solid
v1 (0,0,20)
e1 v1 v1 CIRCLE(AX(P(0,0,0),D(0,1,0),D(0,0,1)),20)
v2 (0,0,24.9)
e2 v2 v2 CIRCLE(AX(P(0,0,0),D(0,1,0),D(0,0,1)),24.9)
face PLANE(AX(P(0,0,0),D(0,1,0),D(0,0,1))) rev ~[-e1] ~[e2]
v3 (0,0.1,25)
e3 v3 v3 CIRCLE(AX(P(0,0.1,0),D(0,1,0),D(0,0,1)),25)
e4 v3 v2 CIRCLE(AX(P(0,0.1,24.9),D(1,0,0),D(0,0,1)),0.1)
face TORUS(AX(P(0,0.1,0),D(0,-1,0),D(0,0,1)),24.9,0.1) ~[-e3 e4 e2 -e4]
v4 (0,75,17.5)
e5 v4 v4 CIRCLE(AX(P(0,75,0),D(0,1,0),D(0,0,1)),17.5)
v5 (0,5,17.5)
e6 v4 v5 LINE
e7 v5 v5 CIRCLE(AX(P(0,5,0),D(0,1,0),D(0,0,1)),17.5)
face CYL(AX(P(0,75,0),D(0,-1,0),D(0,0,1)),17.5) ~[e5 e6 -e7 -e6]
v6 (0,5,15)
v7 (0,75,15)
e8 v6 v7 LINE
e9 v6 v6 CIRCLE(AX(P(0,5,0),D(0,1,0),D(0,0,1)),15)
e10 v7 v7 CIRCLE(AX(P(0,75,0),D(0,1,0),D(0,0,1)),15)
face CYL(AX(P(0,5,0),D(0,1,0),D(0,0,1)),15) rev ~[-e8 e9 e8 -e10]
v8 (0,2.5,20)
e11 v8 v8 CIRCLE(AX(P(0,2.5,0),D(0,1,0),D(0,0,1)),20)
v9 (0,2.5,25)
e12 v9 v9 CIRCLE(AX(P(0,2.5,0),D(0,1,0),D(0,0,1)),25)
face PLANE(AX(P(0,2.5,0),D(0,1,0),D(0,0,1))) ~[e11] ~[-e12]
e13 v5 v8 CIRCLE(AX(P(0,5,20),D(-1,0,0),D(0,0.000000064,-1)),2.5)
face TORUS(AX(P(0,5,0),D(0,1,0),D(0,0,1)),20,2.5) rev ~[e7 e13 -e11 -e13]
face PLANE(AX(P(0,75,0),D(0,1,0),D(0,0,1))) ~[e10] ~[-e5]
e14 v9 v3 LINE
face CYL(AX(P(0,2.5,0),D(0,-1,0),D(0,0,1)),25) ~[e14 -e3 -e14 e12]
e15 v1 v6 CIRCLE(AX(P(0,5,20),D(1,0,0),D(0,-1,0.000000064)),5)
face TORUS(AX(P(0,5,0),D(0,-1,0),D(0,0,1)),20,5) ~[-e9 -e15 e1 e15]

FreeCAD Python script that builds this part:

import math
import FreeCAD as App
import Part
import Sketcher
Q = App.Units.Quantity


def edges_at(feature, points):
    """Names of the edges that pass closest to the given points."""
    edges = feature.Shape.Edges
    near = lambda p: min(range(len(edges)), key=lambda i: edges[i].distToShape(Part.Vertex(*p))[0])
    return sorted({f"Edge{near(p) + 1}" for p in points})

doc = App.newDocument("Part")
body = doc.addObject("PartDesign::Body", "Body")

# Sketch on YZ plane
sketch1 = body.newObject("Sketcher::SketchObject", "Sketch")
sketch1.AttachmentSupport = (doc.getObject("YZ_Plane"), [""])
sketch1.MapMode = "FlatFace"
sketch1.addGeometry([
    Part.ArcOfCircle(Part.Circle(App.Vector(5, 20, 0), App.Vector(0, 0, 1), 5), math.radians(180), math.radians(270)),  # 0
    Part.LineSegment(App.Vector(5, 15, 0), App.Vector(75, 15, 0)),  # 1
    Part.LineSegment(App.Vector(75, 15, 0), App.Vector(75, 17.5, 0)),  # 2
    Part.LineSegment(App.Vector(75, 17.5, 0), App.Vector(5, 17.5, 0)),  # 3
    Part.ArcOfCircle(Part.Circle(App.Vector(5, 20, 0), App.Vector(0, 0, 1), 2.5), math.radians(180), math.radians(270)),  # 4
    Part.LineSegment(App.Vector(2.5, 20, 0), App.Vector(2.5, 25, 0)),  # 5
    Part.LineSegment(App.Vector(2.5, 25, 0), App.Vector(0, 25, 0)),  # 6
    Part.LineSegment(App.Vector(0, 25, 0), App.Vector(0, 20, 0)),  # 7
], False)
sketch1.addConstraint([
    Sketcher.Constraint("Tangent", 0, 2, 1, 1),
    Sketcher.Constraint("Coincident", 1, 2, 2, 1),
    Sketcher.Constraint("Coincident", 2, 2, 3, 1),
    Sketcher.Constraint("Tangent", 3, 2, 4, 2),
    Sketcher.Constraint("Tangent", 4, 1, 5, 1),
    Sketcher.Constraint("Coincident", 5, 2, 6, 1),
    Sketcher.Constraint("Coincident", 6, 2, 7, 1),
    Sketcher.Constraint("Tangent", 7, 2, 0, 1),
    Sketcher.Constraint("Horizontal", 1),
    Sketcher.Constraint("Vertical", 2),
    Sketcher.Constraint("Horizontal", 3),
    Sketcher.Constraint("Vertical", 5),
    Sketcher.Constraint("Horizontal", 6),
    Sketcher.Constraint("Vertical", 7),
    Sketcher.Constraint("Coincident", 4, 3, 0, 3),
    Sketcher.Constraint("PointOnObject", 6, 2, -2),
    Sketcher.Constraint("Radius", 0, Q("5 mm")),
    Sketcher.Constraint("Radius", 4, Q("2.5 mm")),
    Sketcher.Constraint("DistanceX", 1, 1, 1, 2, Q("70 mm")),
    Sketcher.Constraint("DistanceY", 5, 1, 5, 2, Q("5 mm")),
    Sketcher.Constraint("DistanceY", -1, 1, 0, 3, Q("20 mm")),
])
revolution = body.newObject("PartDesign::Revolution", "Revolution")
revolution.Profile = sketch1
revolution.ReferenceAxis = (sketch1, ["H_Axis"])
revolution.Angle = 360
doc.recompute()

fillet = body.newObject("PartDesign::Fillet", "Fillet")
fillet.Base = (revolution, edges_at(revolution, [(0, 0, -25)]))
fillet.Radius = 0.1

doc.recompute()
